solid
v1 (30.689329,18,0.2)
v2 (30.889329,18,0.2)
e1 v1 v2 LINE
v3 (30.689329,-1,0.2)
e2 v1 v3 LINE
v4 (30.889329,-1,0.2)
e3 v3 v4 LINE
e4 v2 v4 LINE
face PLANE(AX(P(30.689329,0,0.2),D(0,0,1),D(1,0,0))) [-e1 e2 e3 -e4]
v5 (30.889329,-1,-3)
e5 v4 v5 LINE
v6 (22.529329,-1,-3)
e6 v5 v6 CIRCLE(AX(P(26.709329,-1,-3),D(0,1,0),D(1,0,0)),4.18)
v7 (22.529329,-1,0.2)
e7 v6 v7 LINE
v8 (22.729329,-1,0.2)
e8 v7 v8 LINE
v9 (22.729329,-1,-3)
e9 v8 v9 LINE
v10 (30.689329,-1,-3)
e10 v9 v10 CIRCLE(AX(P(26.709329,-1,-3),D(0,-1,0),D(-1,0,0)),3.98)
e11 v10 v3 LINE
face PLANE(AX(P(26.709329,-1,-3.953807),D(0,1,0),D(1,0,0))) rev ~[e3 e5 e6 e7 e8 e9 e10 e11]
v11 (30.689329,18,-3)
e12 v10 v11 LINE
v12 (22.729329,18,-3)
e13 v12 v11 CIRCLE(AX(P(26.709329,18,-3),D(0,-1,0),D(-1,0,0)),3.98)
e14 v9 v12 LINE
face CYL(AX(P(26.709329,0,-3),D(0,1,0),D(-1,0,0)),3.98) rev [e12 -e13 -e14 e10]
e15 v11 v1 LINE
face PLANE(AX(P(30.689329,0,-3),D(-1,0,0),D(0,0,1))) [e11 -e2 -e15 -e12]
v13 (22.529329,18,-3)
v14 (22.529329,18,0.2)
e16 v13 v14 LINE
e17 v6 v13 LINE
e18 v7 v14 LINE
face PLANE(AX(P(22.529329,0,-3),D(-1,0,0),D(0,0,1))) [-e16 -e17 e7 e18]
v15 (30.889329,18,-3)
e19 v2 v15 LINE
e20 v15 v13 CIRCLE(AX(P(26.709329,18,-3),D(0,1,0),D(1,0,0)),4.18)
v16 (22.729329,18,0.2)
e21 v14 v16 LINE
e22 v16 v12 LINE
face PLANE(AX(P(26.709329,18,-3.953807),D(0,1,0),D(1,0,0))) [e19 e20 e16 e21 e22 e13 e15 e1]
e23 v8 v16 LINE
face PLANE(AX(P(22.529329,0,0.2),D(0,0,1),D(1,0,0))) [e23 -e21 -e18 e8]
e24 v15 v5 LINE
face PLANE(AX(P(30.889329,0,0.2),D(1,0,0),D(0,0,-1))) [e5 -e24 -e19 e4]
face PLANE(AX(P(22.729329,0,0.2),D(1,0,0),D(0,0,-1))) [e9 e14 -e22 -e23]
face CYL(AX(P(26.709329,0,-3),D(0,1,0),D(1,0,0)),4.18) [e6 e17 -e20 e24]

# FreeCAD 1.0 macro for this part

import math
import FreeCAD as App
import Part
import Sketcher
from FreeCAD import Vector
Q = App.Units.Quantity

doc = App.newDocument("Part")
body = doc.addObject("PartDesign::Body", "Body")

sketch1 = body.newObject("Sketcher::SketchObject", "Sketch")
sketch1.AttachmentSupport = (doc.getObject("XZ_Plane"), [""])
sketch1.MapMode = "FlatFace"
sketch1.addGeometry([
    Part.ArcOfCircle(Part.Circle(Vector(26.71, -3, 0), Vector(0, 0, 1), 4.18), math.radians(180), math.radians(360)),
    Part.LineSegment(Vector(22.53, -3, 0), Vector(22.53, 0.2, 0)),
    Part.LineSegment(Vector(22.53, 0.2, 0), Vector(22.73, 0.2, 0)),
    Part.LineSegment(Vector(22.73, 0.2, 0), Vector(22.73, -3, 0)),
    Part.ArcOfCircle(Part.Circle(Vector(26.71, -3, 0), Vector(0, 0, 1), 3.98), math.radians(180), math.radians(360)),
    Part.LineSegment(Vector(30.69, -3, 0), Vector(30.69, 0.2, 0)),
    Part.LineSegment(Vector(30.69, 0.2, 0), Vector(30.89, 0.2, 0)),
    Part.LineSegment(Vector(30.89, 0.2, 0), Vector(30.89, -3, 0)),
], False)
sketch1.addConstraint([
    Sketcher.Constraint("Tangent", 0, 1, 1, 1),
    Sketcher.Constraint("Coincident", 1, 2, 2, 1),
    Sketcher.Constraint("Coincident", 2, 2, 3, 1),
    Sketcher.Constraint("Tangent", 3, 2, 4, 1),
    Sketcher.Constraint("Tangent", 4, 2, 5, 1),
    Sketcher.Constraint("Coincident", 5, 2, 6, 1),
    Sketcher.Constraint("Coincident", 6, 2, 7, 1),
    Sketcher.Constraint("Tangent", 7, 2, 0, 2),
    Sketcher.Constraint("Vertical", 1),
    Sketcher.Constraint("Horizontal", 2),
    Sketcher.Constraint("Vertical", 3),
    Sketcher.Constraint("Vertical", 5),
    Sketcher.Constraint("Horizontal", 6),
    Sketcher.Constraint("Vertical", 7),
    Sketcher.Constraint("Coincident", 4, 3, 0, 3),
    Sketcher.Constraint("Horizontal", 2, 2, 5, 2),
    Sketcher.Constraint("Radius", 0, Q("4.18 mm")),
    Sketcher.Constraint("Radius", 4, Q("3.98 mm")),
    Sketcher.Constraint("DistanceY", 1, 1, 1, 2, Q("3.2 mm")),
    Sketcher.Constraint("DistanceY", 0, 3, -1, 1, Q("3 mm")),
    Sketcher.Constraint("DistanceX", -1, 1, 0, 3, Q("26.709329 mm")),
])
pad1 = body.newObject("PartDesign::Pad", "Pad")
pad1.Profile = sketch1
pad1.Length = 18
pad1.Reversed = True

sketch2 = body.newObject("Sketcher::SketchObject", "Sketch001")
sketch2.AttachmentSupport = (doc.getObject("XZ_Plane"), [""])
sketch2.MapMode = "FlatFace"
sketch2.addGeometry([
    Part.ArcOfCircle(Part.Circle(Vector(26.71, -3, 0), Vector(0, 0, 1), 4.18), math.radians(180), math.radians(360)),
    Part.LineSegment(Vector(22.53, -3, 0), Vector(22.53, 0.2, 0)),
    Part.LineSegment(Vector(22.53, 0.2, 0), Vector(22.73, 0.2, 0)),
    Part.LineSegment(Vector(22.73, 0.2, 0), Vector(22.73, -3, 0)),
    Part.ArcOfCircle(Part.Circle(Vector(26.71, -3, 0), Vector(0, 0, 1), 3.98), math.radians(180), math.radians(360)),
    Part.LineSegment(Vector(30.69, -3, 0), Vector(30.69, 0.2, 0)),
    Part.LineSegment(Vector(30.69, 0.2, 0), Vector(30.89, 0.2, 0)),
    Part.LineSegment(Vector(30.89, 0.2, 0), Vector(30.89, -3, 0)),
], False)
sketch2.addConstraint([
    Sketcher.Constraint("Tangent", 0, 1, 1, 1),
    Sketcher.Constraint("Coincident", 1, 2, 2, 1),
    Sketcher.Constraint("Coincident", 2, 2, 3, 1),
    Sketcher.Constraint("Tangent", 3, 2, 4, 1),
    Sketcher.Constraint("Tangent", 4, 2, 5, 1),
    Sketcher.Constraint("Coincident", 5, 2, 6, 1),
    Sketcher.Constraint("Coincident", 6, 2, 7, 1),
    Sketcher.Constraint("Tangent", 7, 2, 0, 2),
    Sketcher.Constraint("Vertical", 1),
    Sketcher.Constraint("Horizontal", 2),
    Sketcher.Constraint("Vertical", 3),
    Sketcher.Constraint("Vertical", 5),
    Sketcher.Constraint("Horizontal", 6),
    Sketcher.Constraint("Vertical", 7),
    Sketcher.Constraint("Coincident", 4, 3, 0, 3),
    Sketcher.Constraint("Horizontal", 2, 2, 5, 2),
    Sketcher.Constraint("Radius", 0, Q("4.18 mm")),
    Sketcher.Constraint("Radius", 4, Q("3.98 mm")),
    Sketcher.Constraint("DistanceY", 1, 1, 1, 2, Q("3.2 mm")),
    Sketcher.Constraint("DistanceY", 0, 3, -1, 1, Q("3 mm")),
    Sketcher.Constraint("DistanceX", -1, 1, 0, 3, Q("26.709329 mm")),
])
pad2 = body.newObject("PartDesign::Pad", "Pad001")
pad2.Profile = sketch2
pad2.Length = 1

doc.recompute()
